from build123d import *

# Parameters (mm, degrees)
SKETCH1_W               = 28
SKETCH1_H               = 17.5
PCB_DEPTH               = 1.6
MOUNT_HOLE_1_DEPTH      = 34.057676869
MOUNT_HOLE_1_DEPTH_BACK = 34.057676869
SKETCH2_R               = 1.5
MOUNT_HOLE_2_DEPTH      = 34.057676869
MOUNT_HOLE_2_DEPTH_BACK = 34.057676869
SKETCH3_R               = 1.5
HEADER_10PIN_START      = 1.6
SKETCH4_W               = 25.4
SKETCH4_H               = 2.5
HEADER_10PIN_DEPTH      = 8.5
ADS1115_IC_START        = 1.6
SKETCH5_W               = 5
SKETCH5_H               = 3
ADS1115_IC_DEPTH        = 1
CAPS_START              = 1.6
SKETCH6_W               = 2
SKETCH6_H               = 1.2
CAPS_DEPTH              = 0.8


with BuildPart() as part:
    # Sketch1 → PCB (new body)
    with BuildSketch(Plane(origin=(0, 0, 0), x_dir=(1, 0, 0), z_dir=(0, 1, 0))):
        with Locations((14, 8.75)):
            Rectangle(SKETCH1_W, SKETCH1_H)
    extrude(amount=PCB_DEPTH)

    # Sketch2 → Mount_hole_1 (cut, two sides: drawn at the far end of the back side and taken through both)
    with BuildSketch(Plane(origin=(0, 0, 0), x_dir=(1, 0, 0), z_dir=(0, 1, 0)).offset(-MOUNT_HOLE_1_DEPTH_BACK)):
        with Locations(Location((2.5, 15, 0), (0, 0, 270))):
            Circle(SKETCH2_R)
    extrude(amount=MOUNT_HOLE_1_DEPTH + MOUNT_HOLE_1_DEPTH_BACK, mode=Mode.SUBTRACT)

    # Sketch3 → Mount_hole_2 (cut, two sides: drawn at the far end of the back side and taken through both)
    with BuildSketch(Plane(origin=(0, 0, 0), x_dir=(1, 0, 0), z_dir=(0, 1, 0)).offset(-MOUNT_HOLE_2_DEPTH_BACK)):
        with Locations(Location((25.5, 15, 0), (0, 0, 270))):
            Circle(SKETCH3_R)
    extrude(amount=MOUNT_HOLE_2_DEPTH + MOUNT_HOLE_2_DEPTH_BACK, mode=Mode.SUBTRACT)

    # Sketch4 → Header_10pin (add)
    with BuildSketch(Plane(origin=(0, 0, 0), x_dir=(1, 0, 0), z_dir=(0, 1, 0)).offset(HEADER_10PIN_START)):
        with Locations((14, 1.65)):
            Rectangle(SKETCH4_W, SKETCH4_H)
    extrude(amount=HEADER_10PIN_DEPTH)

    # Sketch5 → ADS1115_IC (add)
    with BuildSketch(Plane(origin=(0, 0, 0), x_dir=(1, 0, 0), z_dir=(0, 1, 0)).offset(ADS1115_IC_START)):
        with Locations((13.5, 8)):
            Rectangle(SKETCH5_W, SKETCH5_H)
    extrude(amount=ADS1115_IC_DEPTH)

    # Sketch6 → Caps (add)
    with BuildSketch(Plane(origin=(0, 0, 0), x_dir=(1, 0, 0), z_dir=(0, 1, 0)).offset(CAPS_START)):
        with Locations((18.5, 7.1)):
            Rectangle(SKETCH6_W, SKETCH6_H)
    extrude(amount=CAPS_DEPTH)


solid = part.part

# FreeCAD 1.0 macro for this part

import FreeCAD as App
import Part
import Sketcher

V = App.Vector


def add_polygon(sketch, points):
    """Adds a closed chain of lines whose ends are joined by coincident constraints."""
    first, n = sketch.GeometryCount, len(points)
    for a, b in zip(points, points[1:] + points[:1]):
        sketch.addGeometry(Part.LineSegment(App.Vector(*a, 0), App.Vector(*b, 0)), False)
    for i in range(n):
        sketch.addConstraint(Sketcher.Constraint("Coincident", first + i, 2, first + (i + 1) % n, 1))

doc = App.newDocument("Part")
body = doc.addObject("PartDesign::Body", "Body")

# Sketch on XZ plane
sketch1 = body.newObject("Sketcher::SketchObject", "Sketch")
sketch1.AttachmentSupport = (doc.getObject("XZ_Plane"), [""])
sketch1.MapMode = "FlatFace"
add_polygon(sketch1, [(0, -18), (0, 0), (28, 0), (28, -18)])  # lines 0-3
sketch1.addConstraint([
    Sketcher.Constraint("Vertical", 0),
    Sketcher.Constraint("Horizontal", 1),
    Sketcher.Constraint("Vertical", 2),
    Sketcher.Constraint("Horizontal", 3),
    Sketcher.Constraint("Coincident", 0, 2, -1, 1),
    Sketcher.Constraint("DistanceX", 1, 1, 1, 2, 28.0),
    Sketcher.Constraint("DistanceY", 0, 1, 0, 2, 17.5),
])
pad1 = body.newObject("PartDesign::Pad", "Pad")
pad1.Profile = sketch1
pad1.Length = 1.6
pad1.Reversed = True

# Sketch on XZ plane
sketch2 = body.newObject("Sketcher::SketchObject", "Sketch001")
sketch2.AttachmentSupport = (doc.getObject("XZ_Plane"), [""])
sketch2.MapMode = "FlatFace"
sketch2.addGeometry(Part.Circle(V(2.5, -15, 0), V(0, 0, 1), 1.5), False)
sketch2.addConstraint([
    Sketcher.Constraint("Diameter", 0, 3.0),
    Sketcher.Constraint("DistanceY", 0, 3, -1, 1, 15.0),
    Sketcher.Constraint("DistanceX", -1, 1, 0, 3, 2.5),
])
pocket1 = body.newObject("PartDesign::Pocket", "Pocket")
pocket1.Profile = sketch2
pocket1.Type = "ThroughAll"
pocket1.Midplane = True

# Sketch on XZ plane
sketch3 = body.newObject("Sketcher::SketchObject", "Sketch002")
sketch3.AttachmentSupport = (doc.getObject("XZ_Plane"), [""])
sketch3.MapMode = "FlatFace"
sketch3.addGeometry(Part.Circle(V(25.5, -15, 0), V(0, 0, 1), 1.5), False)
sketch3.addConstraint([
    Sketcher.Constraint("Diameter", 0, 3.0),
    Sketcher.Constraint("DistanceY", 0, 3, -1, 1, 15.0),
    Sketcher.Constraint("DistanceX", -1, 1, 0, 3, 25.5),
])
pocket2 = body.newObject("PartDesign::Pocket", "Pocket001")
pocket2.Profile = sketch3
pocket2.Type = "ThroughAll"
pocket2.Midplane = True

# Sketch on XZ plane
sketch4 = body.newObject("Sketcher::SketchObject", "Sketch003")
sketch4.AttachmentSupport = (doc.getObject("XZ_Plane"), [""])
sketch4.MapMode = "FlatFace"
sketch4.AttachmentOffset = App.Placement(V(0, 0, -1.6), App.Rotation())
add_polygon(sketch4, [(1.3, -2.9), (1.3, -0.4), (26.7, -0.4), (26.7, -2.9)])  # lines 0-3
sketch4.addConstraint([
    Sketcher.Constraint("Vertical", 0),
    Sketcher.Constraint("Horizontal", 1),
    Sketcher.Constraint("Vertical", 2),
    Sketcher.Constraint("Horizontal", 3),
    Sketcher.Constraint("DistanceX", 1, 1, 1, 2, 25.4),
    Sketcher.Constraint("DistanceY", 0, 1, 0, 2, 2.5),
    Sketcher.Constraint("DistanceX", -1, 1, 0, 2, 1.3),
    Sketcher.Constraint("DistanceY", 0, 2, -1, 1, 0.4),
])
pad2 = body.newObject("PartDesign::Pad", "Pad001")
pad2.Profile = sketch4
pad2.Length = 8.5
pad2.Reversed = True

# Sketch on XZ plane
sketch5 = body.newObject("Sketcher::SketchObject", "Sketch004")
sketch5.AttachmentSupport = (doc.getObject("XZ_Plane"), [""])
sketch5.MapMode = "FlatFace"
sketch5.AttachmentOffset = App.Placement(V(0, 0, -1.6), App.Rotation())
add_polygon(sketch5, [(11, -9.5), (11, -6.5), (16, -6.5), (16, -9.5)])  # lines 0-3
sketch5.addConstraint([
    Sketcher.Constraint("Vertical", 0),
    Sketcher.Constraint("Horizontal", 1),
    Sketcher.Constraint("Vertical", 2),
    Sketcher.Constraint("Horizontal", 3),
    Sketcher.Constraint("DistanceX", 1, 1, 1, 2, 5.0),
    Sketcher.Constraint("DistanceY", 0, 1, 0, 2, 3.0),
    Sketcher.Constraint("DistanceX", -1, 1, 0, 2, 11.0),
    Sketcher.Constraint("DistanceY", 0, 2, -1, 1, 6.5),
])
pad3 = body.newObject("PartDesign::Pad", "Pad002")
pad3.Profile = sketch5
pad3.Length = 1
pad3.Reversed = True

# Sketch on XZ plane
sketch6 = body.newObject("Sketcher::SketchObject", "Sketch005")
sketch6.AttachmentSupport = (doc.getObject("XZ_Plane"), [""])
sketch6.MapMode = "FlatFace"
sketch6.AttachmentOffset = App.Placement(V(0, 0, -1.6), App.Rotation())
add_polygon(sketch6, [(17.5, -7.7), (17.5, -6.5), (19.5, -6.5), (19.5, -7.7)])  # lines 0-3
sketch6.addConstraint([
    Sketcher.Constraint("Vertical", 0),
    Sketcher.Constraint("Horizontal", 1),
    Sketcher.Constraint("Vertical", 2),
    Sketcher.Constraint("Horizontal", 3),
    Sketcher.Constraint("DistanceX", 1, 1, 1, 2, 2.0),
    Sketcher.Constraint("DistanceY", 0, 1, 0, 2, 1.2),
    Sketcher.Constraint("DistanceX", -1, 1, 0, 2, 17.5),
    Sketcher.Constraint("DistanceY", 0, 2, -1, 1, 6.5),
])
pad4 = body.newObject("PartDesign::Pad", "Pad003")
pad4.Profile = sketch6
pad4.Length = 0.8
pad4.Reversed = True

doc.recompute()
